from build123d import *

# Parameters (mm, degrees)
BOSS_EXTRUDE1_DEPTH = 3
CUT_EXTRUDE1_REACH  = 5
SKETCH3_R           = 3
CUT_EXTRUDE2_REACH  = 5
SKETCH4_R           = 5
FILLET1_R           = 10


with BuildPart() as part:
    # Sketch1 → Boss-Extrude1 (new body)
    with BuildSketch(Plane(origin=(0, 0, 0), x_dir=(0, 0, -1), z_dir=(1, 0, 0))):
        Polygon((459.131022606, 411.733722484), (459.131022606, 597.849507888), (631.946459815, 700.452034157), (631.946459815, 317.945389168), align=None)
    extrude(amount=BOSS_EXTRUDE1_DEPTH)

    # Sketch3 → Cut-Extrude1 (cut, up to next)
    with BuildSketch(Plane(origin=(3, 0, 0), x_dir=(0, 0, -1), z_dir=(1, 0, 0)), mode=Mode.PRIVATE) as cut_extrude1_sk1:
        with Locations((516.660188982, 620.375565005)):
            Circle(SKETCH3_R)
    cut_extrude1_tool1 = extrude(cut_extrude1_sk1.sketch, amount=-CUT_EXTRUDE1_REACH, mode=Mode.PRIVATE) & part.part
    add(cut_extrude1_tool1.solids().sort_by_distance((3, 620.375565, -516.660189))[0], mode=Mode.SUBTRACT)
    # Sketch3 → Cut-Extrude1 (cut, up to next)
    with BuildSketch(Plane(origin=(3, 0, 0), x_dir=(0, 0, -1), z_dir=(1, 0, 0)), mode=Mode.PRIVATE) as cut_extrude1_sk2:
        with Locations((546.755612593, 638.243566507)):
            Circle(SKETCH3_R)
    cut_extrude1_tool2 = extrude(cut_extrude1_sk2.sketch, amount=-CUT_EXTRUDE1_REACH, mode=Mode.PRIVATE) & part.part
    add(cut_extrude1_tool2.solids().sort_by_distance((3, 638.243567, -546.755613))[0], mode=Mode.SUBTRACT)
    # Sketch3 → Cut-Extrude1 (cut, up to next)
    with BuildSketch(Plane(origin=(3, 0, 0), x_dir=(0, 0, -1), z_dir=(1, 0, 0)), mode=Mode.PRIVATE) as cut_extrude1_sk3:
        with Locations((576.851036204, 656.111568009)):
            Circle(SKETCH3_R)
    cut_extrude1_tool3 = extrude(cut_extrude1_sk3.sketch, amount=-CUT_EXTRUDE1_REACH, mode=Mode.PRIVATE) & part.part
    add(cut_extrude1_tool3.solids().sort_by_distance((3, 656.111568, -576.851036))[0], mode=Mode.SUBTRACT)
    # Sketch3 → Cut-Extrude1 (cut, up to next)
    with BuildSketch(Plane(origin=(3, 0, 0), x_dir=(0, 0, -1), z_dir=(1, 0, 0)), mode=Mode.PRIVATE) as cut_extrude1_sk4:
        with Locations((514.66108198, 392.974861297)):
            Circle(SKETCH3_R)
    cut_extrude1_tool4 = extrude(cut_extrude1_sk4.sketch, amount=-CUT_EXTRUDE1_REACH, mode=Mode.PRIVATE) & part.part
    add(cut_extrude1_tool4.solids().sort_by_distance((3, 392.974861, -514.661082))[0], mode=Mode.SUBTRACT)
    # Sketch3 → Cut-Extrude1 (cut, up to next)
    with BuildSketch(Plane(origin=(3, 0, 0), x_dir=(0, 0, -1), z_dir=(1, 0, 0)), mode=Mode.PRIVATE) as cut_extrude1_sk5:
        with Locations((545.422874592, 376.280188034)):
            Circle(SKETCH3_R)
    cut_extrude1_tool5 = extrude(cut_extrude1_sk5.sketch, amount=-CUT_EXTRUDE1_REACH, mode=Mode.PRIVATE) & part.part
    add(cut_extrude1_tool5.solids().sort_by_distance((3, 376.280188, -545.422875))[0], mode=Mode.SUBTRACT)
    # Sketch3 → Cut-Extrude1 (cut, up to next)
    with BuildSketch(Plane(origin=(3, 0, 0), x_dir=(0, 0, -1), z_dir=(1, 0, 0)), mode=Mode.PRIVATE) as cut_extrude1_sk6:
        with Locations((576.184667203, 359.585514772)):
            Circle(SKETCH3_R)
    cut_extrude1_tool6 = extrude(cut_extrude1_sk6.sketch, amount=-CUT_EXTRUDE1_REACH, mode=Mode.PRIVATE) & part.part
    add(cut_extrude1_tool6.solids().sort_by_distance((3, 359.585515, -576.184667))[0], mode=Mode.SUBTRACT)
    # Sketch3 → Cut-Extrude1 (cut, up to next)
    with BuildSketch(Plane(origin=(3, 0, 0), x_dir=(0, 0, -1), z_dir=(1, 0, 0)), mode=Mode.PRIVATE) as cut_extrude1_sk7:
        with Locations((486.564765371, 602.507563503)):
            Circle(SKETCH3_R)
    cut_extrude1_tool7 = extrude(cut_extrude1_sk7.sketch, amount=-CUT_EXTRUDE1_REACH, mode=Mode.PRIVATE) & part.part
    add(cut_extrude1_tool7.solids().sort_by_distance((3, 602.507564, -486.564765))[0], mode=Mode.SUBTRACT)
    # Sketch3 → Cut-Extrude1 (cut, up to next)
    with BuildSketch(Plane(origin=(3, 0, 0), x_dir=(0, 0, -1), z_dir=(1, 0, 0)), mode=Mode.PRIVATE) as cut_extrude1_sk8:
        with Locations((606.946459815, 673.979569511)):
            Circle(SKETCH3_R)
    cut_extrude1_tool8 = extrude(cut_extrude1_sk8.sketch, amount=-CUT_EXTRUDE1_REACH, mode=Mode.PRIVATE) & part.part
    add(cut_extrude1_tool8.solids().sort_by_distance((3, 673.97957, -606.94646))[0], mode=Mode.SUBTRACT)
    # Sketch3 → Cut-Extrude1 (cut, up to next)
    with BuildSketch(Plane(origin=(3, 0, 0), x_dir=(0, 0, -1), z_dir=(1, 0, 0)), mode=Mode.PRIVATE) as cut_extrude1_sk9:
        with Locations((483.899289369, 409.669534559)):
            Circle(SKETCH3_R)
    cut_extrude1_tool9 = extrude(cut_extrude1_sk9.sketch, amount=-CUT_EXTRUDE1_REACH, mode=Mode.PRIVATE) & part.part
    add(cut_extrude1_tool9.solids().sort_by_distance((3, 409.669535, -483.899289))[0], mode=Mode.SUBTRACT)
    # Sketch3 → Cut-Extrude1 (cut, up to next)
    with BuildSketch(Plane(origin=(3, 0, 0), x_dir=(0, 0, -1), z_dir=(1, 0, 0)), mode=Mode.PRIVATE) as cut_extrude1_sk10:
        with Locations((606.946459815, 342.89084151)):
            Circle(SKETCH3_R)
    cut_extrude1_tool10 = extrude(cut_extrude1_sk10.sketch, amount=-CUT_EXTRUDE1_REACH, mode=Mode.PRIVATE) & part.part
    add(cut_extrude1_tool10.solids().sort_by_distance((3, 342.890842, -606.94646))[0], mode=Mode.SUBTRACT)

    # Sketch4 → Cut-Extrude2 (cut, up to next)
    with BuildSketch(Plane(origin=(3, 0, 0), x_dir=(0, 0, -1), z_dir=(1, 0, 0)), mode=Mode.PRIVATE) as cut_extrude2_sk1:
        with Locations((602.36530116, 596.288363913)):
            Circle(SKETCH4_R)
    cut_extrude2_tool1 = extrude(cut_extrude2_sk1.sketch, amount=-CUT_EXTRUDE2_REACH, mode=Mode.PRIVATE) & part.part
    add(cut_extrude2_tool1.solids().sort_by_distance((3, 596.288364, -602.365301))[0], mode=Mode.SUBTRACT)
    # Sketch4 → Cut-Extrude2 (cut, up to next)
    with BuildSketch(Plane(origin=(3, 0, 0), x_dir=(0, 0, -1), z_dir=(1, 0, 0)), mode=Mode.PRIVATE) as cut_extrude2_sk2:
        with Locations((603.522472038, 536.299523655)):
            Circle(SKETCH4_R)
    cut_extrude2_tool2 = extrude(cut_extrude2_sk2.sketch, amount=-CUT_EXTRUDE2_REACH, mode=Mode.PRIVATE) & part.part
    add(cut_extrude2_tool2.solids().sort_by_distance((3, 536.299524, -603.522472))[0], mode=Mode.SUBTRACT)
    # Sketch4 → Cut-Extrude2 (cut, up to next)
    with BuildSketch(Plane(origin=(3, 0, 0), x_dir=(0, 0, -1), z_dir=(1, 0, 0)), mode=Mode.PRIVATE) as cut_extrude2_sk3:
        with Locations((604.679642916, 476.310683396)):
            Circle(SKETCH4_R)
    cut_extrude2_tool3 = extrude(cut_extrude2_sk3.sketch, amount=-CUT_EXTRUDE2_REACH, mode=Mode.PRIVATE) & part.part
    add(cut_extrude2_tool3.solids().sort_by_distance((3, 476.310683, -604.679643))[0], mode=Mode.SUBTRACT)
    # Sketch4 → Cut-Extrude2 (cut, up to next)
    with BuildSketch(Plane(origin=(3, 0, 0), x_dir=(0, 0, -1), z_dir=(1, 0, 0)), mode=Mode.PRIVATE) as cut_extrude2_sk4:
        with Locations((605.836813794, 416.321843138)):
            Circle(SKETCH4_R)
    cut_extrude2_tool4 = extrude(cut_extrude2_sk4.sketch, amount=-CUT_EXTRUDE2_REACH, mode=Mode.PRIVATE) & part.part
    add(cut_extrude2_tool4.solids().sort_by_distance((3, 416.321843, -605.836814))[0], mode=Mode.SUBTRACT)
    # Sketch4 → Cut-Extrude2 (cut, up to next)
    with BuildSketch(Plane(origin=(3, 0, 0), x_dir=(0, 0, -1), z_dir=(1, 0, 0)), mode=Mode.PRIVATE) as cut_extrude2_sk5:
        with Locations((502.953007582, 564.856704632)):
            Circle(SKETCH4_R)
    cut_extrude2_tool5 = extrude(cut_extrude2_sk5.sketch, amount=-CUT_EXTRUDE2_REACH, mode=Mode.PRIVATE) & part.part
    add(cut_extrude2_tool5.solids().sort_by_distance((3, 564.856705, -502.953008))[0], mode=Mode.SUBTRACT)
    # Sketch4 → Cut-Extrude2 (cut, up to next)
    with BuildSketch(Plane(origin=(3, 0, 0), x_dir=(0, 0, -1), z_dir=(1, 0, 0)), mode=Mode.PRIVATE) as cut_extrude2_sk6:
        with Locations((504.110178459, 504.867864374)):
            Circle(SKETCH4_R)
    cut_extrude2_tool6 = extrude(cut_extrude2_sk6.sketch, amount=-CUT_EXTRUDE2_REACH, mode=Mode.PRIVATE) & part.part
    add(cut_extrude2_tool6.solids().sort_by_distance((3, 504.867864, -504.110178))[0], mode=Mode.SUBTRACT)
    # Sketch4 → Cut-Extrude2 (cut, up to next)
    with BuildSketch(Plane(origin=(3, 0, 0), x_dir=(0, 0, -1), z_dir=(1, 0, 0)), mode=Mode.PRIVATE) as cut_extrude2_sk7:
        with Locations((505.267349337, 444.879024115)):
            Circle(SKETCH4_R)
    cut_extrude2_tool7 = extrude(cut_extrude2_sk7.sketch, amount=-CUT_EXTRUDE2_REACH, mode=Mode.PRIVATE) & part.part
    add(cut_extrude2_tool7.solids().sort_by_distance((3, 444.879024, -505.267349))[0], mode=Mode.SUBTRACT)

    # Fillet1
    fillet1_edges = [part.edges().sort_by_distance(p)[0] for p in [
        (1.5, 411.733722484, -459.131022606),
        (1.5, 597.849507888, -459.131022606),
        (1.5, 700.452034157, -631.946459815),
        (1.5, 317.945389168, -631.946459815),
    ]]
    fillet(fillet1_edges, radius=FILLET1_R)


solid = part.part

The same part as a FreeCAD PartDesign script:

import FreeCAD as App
import Part
import Sketcher


def edges_at(feature, points):
    """Names of the edges that pass closest to the given points."""
    edges = feature.Shape.Edges
    near = lambda p: min(range(len(edges)), key=lambda i: edges[i].distToShape(Part.Vertex(*p))[0])
    return sorted({f"Edge{near(p) + 1}" for p in points})


def add_polygon(sketch, points):
    """Adds a closed chain of lines whose ends are joined by coincident constraints."""
    first, n = sketch.GeometryCount, len(points)
    for a, b in zip(points, points[1:] + points[:1]):
        sketch.addGeometry(Part.LineSegment(App.Vector(*a, 0), App.Vector(*b, 0)), False)
    for i in range(n):
        sketch.addConstraint(Sketcher.Constraint("Coincident", first + i, 2, first + (i + 1) % n, 1))

doc = App.newDocument("Part")
body = doc.addObject("PartDesign::Body", "Body")

sketch1 = body.newObject("Sketcher::SketchObject", "Sketch")
sketch1.AttachmentSupport = (doc.getObject("YZ_Plane"), [""])
sketch1.MapMode = "FlatFace"
add_polygon(sketch1, [(598, -459), (412, -459), (318, -632), (700, -632)])
sketch1.addConstraint(Sketcher.Constraint("Horizontal", 0))
sketch1.addConstraint(Sketcher.Constraint("Horizontal", 2))
sketch1.addConstraint(Sketcher.Constraint("Distance", 1, 196.625092))
sketch1.addConstraint(Sketcher.Constraint("Distance", 3, 200.97874))
sketch1.addConstraint(Sketcher.Constraint("DistanceX", 0, 2, 0, 1, 186.115785))
sketch1.addConstraint(Sketcher.Constraint("DistanceX", 2, 1, 2, 2, 382.506645))
sketch1.addConstraint(Sketcher.Constraint("DistanceX", -1, 1, 1, 2, 317.945389))
sketch1.addConstraint(Sketcher.Constraint("DistanceY", 1, 2, -1, 1, 631.94646))
pad1 = body.newObject("PartDesign::Pad", "Pad")
pad1.Profile = sketch1
pad1.Length = 3

sketch2 = body.newObject("Sketcher::SketchObject", "Sketch001")
sketch2.AttachmentSupport = (doc.getObject("YZ_Plane"), [""])
sketch2.MapMode = "FlatFace"
sketch2.AttachmentOffset = App.Placement(App.Vector(0, 0, 3), App.Rotation())
sketch2.addGeometry(Part.Circle(App.Vector(620.4, -516.7, 0), App.Vector(0, 0, 1), 3), False)
sketch2.addConstraint(Sketcher.Constraint("Diameter", 0, 6.0))
sketch2.addConstraint(Sketcher.Constraint("DistanceY", 0, 3, -1, 1, 516.660189))
sketch2.addConstraint(Sketcher.Constraint("DistanceX", -1, 1, 0, 3, 620.375565))
pocket1 = body.newObject("PartDesign::Pocket", "Pocket")
pocket1.Profile = sketch2
pocket1.Type = "UpToFirst"

sketch3 = body.newObject("Sketcher::SketchObject", "Sketch002")
sketch3.AttachmentSupport = (doc.getObject("YZ_Plane"), [""])
sketch3.MapMode = "FlatFace"
sketch3.AttachmentOffset = App.Placement(App.Vector(0, 0, 3), App.Rotation())
sketch3.addGeometry(Part.Circle(App.Vector(638.2, -546.8, 0), App.Vector(0, 0, 1), 3), False)
sketch3.addConstraint(Sketcher.Constraint("Diameter", 0, 6.0))
sketch3.addConstraint(Sketcher.Constraint("DistanceX", -1, 1, 0, 3, 638.243567))
sketch3.addConstraint(Sketcher.Constraint("DistanceY", 0, 3, -1, 1, 546.755613))
pocket2 = body.newObject("PartDesign::Pocket", "Pocket001")
pocket2.Profile = sketch3
pocket2.Type = "UpToFirst"

sketch4 = body.newObject("Sketcher::SketchObject", "Sketch003")
sketch4.AttachmentSupport = (doc.getObject("YZ_Plane"), [""])
sketch4.MapMode = "FlatFace"
sketch4.AttachmentOffset = App.Placement(App.Vector(0, 0, 3), App.Rotation())
sketch4.addGeometry(Part.Circle(App.Vector(656.1, -576.9, 0), App.Vector(0, 0, 1), 3), False)
sketch4.addConstraint(Sketcher.Constraint("Diameter", 0, 6.0))
sketch4.addConstraint(Sketcher.Constraint("DistanceX", -1, 1, 0, 3, 656.111568))
sketch4.addConstraint(Sketcher.Constraint("DistanceY", 0, 3, -1, 1, 576.851036))
pocket3 = body.newObject("PartDesign::Pocket", "Pocket002")
pocket3.Profile = sketch4
pocket3.Type = "UpToFirst"

sketch5 = body.newObject("Sketcher::SketchObject", "Sketch004")
sketch5.AttachmentSupport = (doc.getObject("YZ_Plane"), [""])
sketch5.MapMode = "FlatFace"
sketch5.AttachmentOffset = App.Placement(App.Vector(0, 0, 3), App.Rotation())
sketch5.addGeometry(Part.Circle(App.Vector(393, -514.7, 0), App.Vector(0, 0, 1), 3), False)
sketch5.addConstraint(Sketcher.Constraint("Diameter", 0, 6.0))
sketch5.addConstraint(Sketcher.Constraint("DistanceX", -1, 1, 0, 3, 392.974861))
sketch5.addConstraint(Sketcher.Constraint("DistanceY", 0, 3, -1, 1, 514.661082))
pocket4 = body.newObject("PartDesign::Pocket", "Pocket003")
pocket4.Profile = sketch5
pocket4.Type = "UpToFirst"

sketch6 = body.newObject("Sketcher::SketchObject", "Sketch005")
sketch6.AttachmentSupport = (doc.getObject("YZ_Plane"), [""])
sketch6.MapMode = "FlatFace"
sketch6.AttachmentOffset = App.Placement(App.Vector(0, 0, 3), App.Rotation())
sketch6.addGeometry(Part.Circle(App.Vector(376.3, -545.4, 0), App.Vector(0, 0, 1), 3), False)
sketch6.addConstraint(Sketcher.Constraint("Diameter", 0, 6.0))
sketch6.addConstraint(Sketcher.Constraint("DistanceX", -1, 1, 0, 3, 376.280188))
sketch6.addConstraint(Sketcher.Constraint("DistanceY", 0, 3, -1, 1, 545.422875))
pocket5 = body.newObject("PartDesign::Pocket", "Pocket004")
pocket5.Profile = sketch6
pocket5.Type = "UpToFirst"

sketch7 = body.newObject("Sketcher::SketchObject", "Sketch006")
sketch7.AttachmentSupport = (doc.getObject("YZ_Plane"), [""])
sketch7.MapMode = "FlatFace"
sketch7.AttachmentOffset = App.Placement(App.Vector(0, 0, 3), App.Rotation())
sketch7.addGeometry(Part.Circle(App.Vector(359.6, -576.2, 0), App.Vector(0, 0, 1), 3), False)
sketch7.addConstraint(Sketcher.Constraint("Diameter", 0, 6.0))
sketch7.addConstraint(Sketcher.Constraint("DistanceX", -1, 1, 0, 3, 359.585515))
sketch7.addConstraint(Sketcher.Constraint("DistanceY", 0, 3, -1, 1, 576.184667))
pocket6 = body.newObject("PartDesign::Pocket", "Pocket005")
pocket6.Profile = sketch7
pocket6.Type = "UpToFirst"

sketch8 = body.newObject("Sketcher::SketchObject", "Sketch007")
sketch8.AttachmentSupport = (doc.getObject("YZ_Plane"), [""])
sketch8.MapMode = "FlatFace"
sketch8.AttachmentOffset = App.Placement(App.Vector(0, 0, 3), App.Rotation())
sketch8.addGeometry(Part.Circle(App.Vector(602.5, -486.6, 0), App.Vector(0, 0, 1), 3), False)
sketch8.addConstraint(Sketcher.Constraint("Diameter", 0, 6.0))
sketch8.addConstraint(Sketcher.Constraint("DistanceX", -1, 1, 0, 3, 602.507564))
sketch8.addConstraint(Sketcher.Constraint("DistanceY", 0, 3, -1, 1, 486.564765))
pocket7 = body.newObject("PartDesign::Pocket", "Pocket006")
pocket7.Profile = sketch8
pocket7.Type = "UpToFirst"

sketch9 = body.newObject("Sketcher::SketchObject", "Sketch008")
sketch9.AttachmentSupport = (doc.getObject("YZ_Plane"), [""])
sketch9.MapMode = "FlatFace"
sketch9.AttachmentOffset = App.Placement(App.Vector(0, 0, 3), App.Rotation())
sketch9.addGeometry(Part.Circle(App.Vector(674, -606.9, 0), App.Vector(0, 0, 1), 3), False)
sketch9.addConstraint(Sketcher.Constraint("Diameter", 0, 6.0))
sketch9.addConstraint(Sketcher.Constraint("DistanceX", -1, 1, 0, 3, 673.97957))
sketch9.addConstraint(Sketcher.Constraint("DistanceY", 0, 3, -1, 1, 606.94646))
pocket8 = body.newObject("PartDesign::Pocket", "Pocket007")
pocket8.Profile = sketch9
pocket8.Type = "UpToFirst"

sketch10 = body.newObject("Sketcher::SketchObject", "Sketch009")
sketch10.AttachmentSupport = (doc.getObject("YZ_Plane"), [""])
sketch10.MapMode = "FlatFace"
sketch10.AttachmentOffset = App.Placement(App.Vector(0, 0, 3), App.Rotation())
sketch10.addGeometry(Part.Circle(App.Vector(409.7, -483.9, 0), App.Vector(0, 0, 1), 3), False)
sketch10.addConstraint(Sketcher.Constraint("Diameter", 0, 6.0))
sketch10.addConstraint(Sketcher.Constraint("DistanceY", 0, 3, -1, 1, 483.899289))
sketch10.addConstraint(Sketcher.Constraint("DistanceX", -1, 1, 0, 3, 409.669535))
pocket9 = body.newObject("PartDesign::Pocket", "Pocket008")
pocket9.Profile = sketch10
pocket9.Type = "UpToFirst"

sketch11 = body.newObject("Sketcher::SketchObject", "Sketch010")
sketch11.AttachmentSupport = (doc.getObject("YZ_Plane"), [""])
sketch11.MapMode = "FlatFace"
sketch11.AttachmentOffset = App.Placement(App.Vector(0, 0, 3), App.Rotation())
sketch11.addGeometry(Part.Circle(App.Vector(342.9, -606.9, 0), App.Vector(0, 0, 1), 3), False)
sketch11.addConstraint(Sketcher.Constraint("Diameter", 0, 6.0))
sketch11.addConstraint(Sketcher.Constraint("DistanceX", -1, 1, 0, 3, 342.890842))
sketch11.addConstraint(Sketcher.Constraint("DistanceY", 0, 3, -1, 1, 606.94646))
pocket10 = body.newObject("PartDesign::Pocket", "Pocket009")
pocket10.Profile = sketch11
pocket10.Type = "UpToFirst"

sketch12 = body.newObject("Sketcher::SketchObject", "Sketch011")
sketch12.AttachmentSupport = (doc.getObject("YZ_Plane"), [""])
sketch12.MapMode = "FlatFace"
sketch12.AttachmentOffset = App.Placement(App.Vector(0, 0, 3), App.Rotation())
sketch12.addGeometry(Part.Circle(App.Vector(596, -602, 0), App.Vector(0, 0, 1), 5), False)
sketch12.addConstraint(Sketcher.Constraint("Diameter", 0, 10.0))
sketch12.addConstraint(Sketcher.Constraint("DistanceY", 0, 3, -1, 1, 602.365301))
sketch12.addConstraint(Sketcher.Constraint("DistanceX", -1, 1, 0, 3, 596.288364))
pocket11 = body.newObject("PartDesign::Pocket", "Pocket010")
pocket11.Profile = sketch12
pocket11.Type = "UpToFirst"

sketch13 = body.newObject("Sketcher::SketchObject", "Sketch012")
sketch13.AttachmentSupport = (doc.getObject("YZ_Plane"), [""])
sketch13.MapMode = "FlatFace"
sketch13.AttachmentOffset = App.Placement(App.Vector(0, 0, 3), App.Rotation())
sketch13.addGeometry(Part.Circle(App.Vector(536, -604, 0), App.Vector(0, 0, 1), 5), False)
sketch13.addConstraint(Sketcher.Constraint("Diameter", 0, 10.0))
sketch13.addConstraint(Sketcher.Constraint("DistanceX", -1, 1, 0, 3, 536.299524))
sketch13.addConstraint(Sketcher.Constraint("DistanceY", 0, 3, -1, 1, 603.522472))
pocket12 = body.newObject("PartDesign::Pocket", "Pocket011")
pocket12.Profile = sketch13
pocket12.Type = "UpToFirst"

sketch14 = body.newObject("Sketcher::SketchObject", "Sketch013")
sketch14.AttachmentSupport = (doc.getObject("YZ_Plane"), [""])
sketch14.MapMode = "FlatFace"
sketch14.AttachmentOffset = App.Placement(App.Vector(0, 0, 3), App.Rotation())
sketch14.addGeometry(Part.Circle(App.Vector(476, -605, 0), App.Vector(0, 0, 1), 5), False)
sketch14.addConstraint(Sketcher.Constraint("Diameter", 0, 10.0))
sketch14.addConstraint(Sketcher.Constraint("DistanceX", -1, 1, 0, 3, 476.310683))
sketch14.addConstraint(Sketcher.Constraint("DistanceY", 0, 3, -1, 1, 604.679643))
pocket13 = body.newObject("PartDesign::Pocket", "Pocket012")
pocket13.Profile = sketch14
pocket13.Type = "UpToFirst"

sketch15 = body.newObject("Sketcher::SketchObject", "Sketch014")
sketch15.AttachmentSupport = (doc.getObject("YZ_Plane"), [""])
sketch15.MapMode = "FlatFace"
sketch15.AttachmentOffset = App.Placement(App.Vector(0, 0, 3), App.Rotation())
sketch15.addGeometry(Part.Circle(App.Vector(416, -606, 0), App.Vector(0, 0, 1), 5), False)
sketch15.addConstraint(Sketcher.Constraint("Diameter", 0, 10.0))
sketch15.addConstraint(Sketcher.Constraint("DistanceX", -1, 1, 0, 3, 416.321843))
sketch15.addConstraint(Sketcher.Constraint("DistanceY", 0, 3, -1, 1, 605.836814))
pocket14 = body.newObject("PartDesign::Pocket", "Pocket013")
pocket14.Profile = sketch15
pocket14.Type = "UpToFirst"

sketch16 = body.newObject("Sketcher::SketchObject", "Sketch015")
sketch16.AttachmentSupport = (doc.getObject("YZ_Plane"), [""])
sketch16.MapMode = "FlatFace"
sketch16.AttachmentOffset = App.Placement(App.Vector(0, 0, 3), App.Rotation())
sketch16.addGeometry(Part.Circle(App.Vector(565, -503, 0), App.Vector(0, 0, 1), 5), False)
sketch16.addConstraint(Sketcher.Constraint("Diameter", 0, 10.0))
sketch16.addConstraint(Sketcher.Constraint("DistanceX", -1, 1, 0, 3, 564.856705))
sketch16.addConstraint(Sketcher.Constraint("DistanceY", 0, 3, -1, 1, 502.953008))
pocket15 = body.newObject("PartDesign::Pocket", "Pocket014")
pocket15.Profile = sketch16
pocket15.Type = "UpToFirst"

sketch17 = body.newObject("Sketcher::SketchObject", "Sketch016")
sketch17.AttachmentSupport = (doc.getObject("YZ_Plane"), [""])
sketch17.MapMode = "FlatFace"
sketch17.AttachmentOffset = App.Placement(App.Vector(0, 0, 3), App.Rotation())
sketch17.addGeometry(Part.Circle(App.Vector(505, -504, 0), App.Vector(0, 0, 1), 5), False)
sketch17.addConstraint(Sketcher.Constraint("Diameter", 0, 10.0))
sketch17.addConstraint(Sketcher.Constraint("DistanceY", 0, 3, -1, 1, 504.110178))
sketch17.addConstraint(Sketcher.Constraint("DistanceX", -1, 1, 0, 3, 504.867864))
pocket16 = body.newObject("PartDesign::Pocket", "Pocket015")
pocket16.Profile = sketch17
pocket16.Type = "UpToFirst"

sketch18 = body.newObject("Sketcher::SketchObject", "Sketch017")
sketch18.AttachmentSupport = (doc.getObject("YZ_Plane"), [""])
sketch18.MapMode = "FlatFace"
sketch18.AttachmentOffset = App.Placement(App.Vector(0, 0, 3), App.Rotation())
sketch18.addGeometry(Part.Circle(App.Vector(445, -505, 0), App.Vector(0, 0, 1), 5), False)
sketch18.addConstraint(Sketcher.Constraint("Diameter", 0, 10.0))
sketch18.addConstraint(Sketcher.Constraint("DistanceY", 0, 3, -1, 1, 505.267349))
sketch18.addConstraint(Sketcher.Constraint("DistanceX", -1, 1, 0, 3, 444.879024))
pocket17 = body.newObject("PartDesign::Pocket", "Pocket016")
pocket17.Profile = sketch18
pocket17.Type = "UpToFirst"
doc.recompute()

fillet = body.newObject("PartDesign::Fillet", "Fillet")
fillet.Base = (pocket17, edges_at(pocket17, [
    (1.5, 411.734, -459.131),
    (1.5, 597.85, -459.131),
    (1.5, 700.452, -631.946),
    (1.5, 317.945, -631.946),
]))
fillet.Radius = 10

doc.recompute()
